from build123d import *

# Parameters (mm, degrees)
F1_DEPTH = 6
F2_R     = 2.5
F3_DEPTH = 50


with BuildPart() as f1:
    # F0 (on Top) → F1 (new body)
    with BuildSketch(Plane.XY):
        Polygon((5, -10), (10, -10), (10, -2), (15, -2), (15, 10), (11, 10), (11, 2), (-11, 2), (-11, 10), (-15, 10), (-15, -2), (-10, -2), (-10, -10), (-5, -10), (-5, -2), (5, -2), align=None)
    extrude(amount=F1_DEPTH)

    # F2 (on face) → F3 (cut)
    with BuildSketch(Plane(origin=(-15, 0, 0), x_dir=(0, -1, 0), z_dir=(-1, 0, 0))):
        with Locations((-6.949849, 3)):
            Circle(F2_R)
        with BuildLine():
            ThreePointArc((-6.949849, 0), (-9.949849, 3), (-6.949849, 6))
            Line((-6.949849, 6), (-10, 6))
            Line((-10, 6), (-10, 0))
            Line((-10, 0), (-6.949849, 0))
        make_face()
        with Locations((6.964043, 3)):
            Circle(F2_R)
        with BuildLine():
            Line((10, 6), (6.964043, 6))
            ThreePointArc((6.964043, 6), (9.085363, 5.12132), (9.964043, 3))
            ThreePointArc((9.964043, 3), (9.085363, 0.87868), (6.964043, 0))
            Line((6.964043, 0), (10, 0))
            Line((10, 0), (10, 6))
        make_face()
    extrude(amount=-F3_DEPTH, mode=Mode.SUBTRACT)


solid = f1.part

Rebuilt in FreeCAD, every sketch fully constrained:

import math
import FreeCAD as App
import Part
import Sketcher

V = App.Vector


def add_polygon(sketch, points):
    """Adds a closed chain of lines whose ends are joined by coincident constraints."""
    first, n = sketch.GeometryCount, len(points)
    for a, b in zip(points, points[1:] + points[:1]):
        sketch.addGeometry(Part.LineSegment(App.Vector(*a, 0), App.Vector(*b, 0)), False)
    for i in range(n):
        sketch.addConstraint(Sketcher.Constraint("Coincident", first + i, 2, first + (i + 1) % n, 1))

doc = App.newDocument("Part")
body = doc.addObject("PartDesign::Body", "Body")

sketch1 = body.newObject("Sketcher::SketchObject", "Sketch")
sketch1.AttachmentSupport = (doc.getObject("XY_Plane"), [""])
sketch1.MapMode = "FlatFace"
add_polygon(sketch1, [(5, -10), (10, -10), (10, -2), (15, -2), (15, 10), (11, 10), (11, 2), (-11, 2), (-11, 10), (-15, 10), (-15, -2), (-10, -2), (-10, -10), (-5, -10), (-5, -2), (5, -2)])
sketch1.addConstraint([
    Sketcher.Constraint("Horizontal", 0),
    Sketcher.Constraint("Vertical", 1),
    Sketcher.Constraint("Horizontal", 2),
    Sketcher.Constraint("Vertical", 3),
    Sketcher.Constraint("Horizontal", 4),
    Sketcher.Constraint("Vertical", 5),
    Sketcher.Constraint("Horizontal", 6),
    Sketcher.Constraint("Vertical", 7),
    Sketcher.Constraint("Horizontal", 8),
    Sketcher.Constraint("Vertical", 9),
    Sketcher.Constraint("Horizontal", 10),
    Sketcher.Constraint("Vertical", 11),
    Sketcher.Constraint("Horizontal", 12),
    Sketcher.Constraint("Vertical", 13),
    Sketcher.Constraint("Horizontal", 14),
    Sketcher.Constraint("Vertical", 15),
    Sketcher.Constraint("Symmetric", 4, 2, 7, 2, -2),
    Sketcher.Constraint("Symmetric", 2, 2, 9, 2, -2),
    Sketcher.Constraint("Symmetric", 0, 2, 11, 2, -2),
    Sketcher.Constraint("Horizontal", 10, 2, 13, 2),
    Sketcher.Constraint("Equal", 0, 2),
    Sketcher.Constraint("Equal", 10, 12),
    Sketcher.Constraint("Equal", 1, 5),
    Sketcher.Constraint("DistanceX", 0, 1, 0, 2, 5.0),
    Sketcher.Constraint("DistanceX", 4, 2, 4, 1, 4.0),
    Sketcher.Constraint("DistanceX", 6, 2, 6, 1, 22.0),
    Sketcher.Constraint("DistanceY", 1, 1, 1, 2, 8.0),
    Sketcher.Constraint("DistanceY", 3, 1, 3, 2, 12.0),
    Sketcher.Constraint("DistanceY", 0, 2, -1, 1, 10.0),
])
pad1 = body.newObject("PartDesign::Pad", "Pad")
pad1.Profile = sketch1
pad1.Length = 6

sketch2 = body.newObject("Sketcher::SketchObject", "Sketch001")
sketch2.AttachmentSupport = (doc.getObject("YZ_Plane"), [""])
sketch2.MapMode = "FlatFace"
sketch2.AttachmentOffset = App.Placement(V(0, 0, -15), App.Rotation())
sketch2.addGeometry([
    Part.Circle(V(6.949849, 3, 0), V(0, 0, 1), 2.5),
    Part.ArcOfCircle(Part.Circle(V(6.949849, 3, 0), V(0, 0, 1), 3), math.radians(-90), math.radians(90)),
    Part.LineSegment(V(6.949849, 6, 0), V(10, 6, 0)),
    Part.LineSegment(V(10, 6, 0), V(10, 0, 0)),
    Part.LineSegment(V(10, 0, 0), V(6.949849, 0, 0)),
    Part.Circle(V(-6.964043, 3, 0), V(0, 0, 1), 2.5),
    Part.LineSegment(V(-10, 6, 0), V(-6.964043, 6, 0)),
    Part.ArcOfCircle(Part.Circle(V(-6.964042, 2.999999, 0), V(0, 0, 1), 3.000001), math.radians(90.000022), math.radians(179.999978)),
    Part.ArcOfCircle(Part.Circle(V(-6.964042, 3.000001, 0), V(0, 0, 1), 3.000001), math.radians(-179.999978), math.radians(-90.000022)),
    Part.LineSegment(V(-6.964043, 0, 0), V(-10, 0, 0)),
    Part.LineSegment(V(-10, 0, 0), V(-10, 6, 0)),
], False)
sketch2.addConstraint([
    Sketcher.Constraint("Tangent", 1, 2, 2, 1),
    Sketcher.Constraint("Coincident", 2, 2, 3, 1),
    Sketcher.Constraint("Coincident", 3, 2, 4, 1),
    Sketcher.Constraint("Tangent", 4, 2, 1, 1),
    Sketcher.Constraint("Tangent", 6, 2, 7, 1),
    Sketcher.Constraint("Tangent", 7, 2, 8, 1),
    Sketcher.Constraint("Tangent", 8, 2, 9, 1),
    Sketcher.Constraint("Coincident", 9, 2, 10, 1),
    Sketcher.Constraint("Coincident", 10, 2, 6, 1),
    Sketcher.Constraint("Horizontal", 2),
    Sketcher.Constraint("Vertical", 3),
    Sketcher.Constraint("Horizontal", 4),
    Sketcher.Constraint("Horizontal", 6),
    Sketcher.Constraint("Horizontal", 9),
    Sketcher.Constraint("Vertical", 10),
    Sketcher.Constraint("Coincident", 1, 3, 0, 3),
    Sketcher.Constraint("Coincident", 7, 3, 5, 3),
    Sketcher.Constraint("Equal", 0, 5),
    Sketcher.Constraint("Equal", 1, 7),
    Sketcher.Constraint("Equal", 7, 8),
    Sketcher.Constraint("Symmetric", 3, 2, 9, 2, -1, 1),
    Sketcher.Constraint("PointOnObject", 3, 2, -1),
    Sketcher.Constraint("Horizontal", 8, 3, 7, 2),
    Sketcher.Constraint("Diameter", 0, 5.0),
    Sketcher.Constraint("Radius", 1, 3.0),
    Sketcher.Constraint("DistanceX", -1, 1, 2, 2, 10.0),
    Sketcher.Constraint("DistanceX", 2, 1, 2, 2, 3.050151),
    Sketcher.Constraint("DistanceX", 6, 1, 6, 2, 3.035957),
])
pocket1 = body.newObject("PartDesign::Pocket", "Pocket")
pocket1.Profile = sketch2
pocket1.Length = 50
pocket1.Reversed = True

doc.recompute()
